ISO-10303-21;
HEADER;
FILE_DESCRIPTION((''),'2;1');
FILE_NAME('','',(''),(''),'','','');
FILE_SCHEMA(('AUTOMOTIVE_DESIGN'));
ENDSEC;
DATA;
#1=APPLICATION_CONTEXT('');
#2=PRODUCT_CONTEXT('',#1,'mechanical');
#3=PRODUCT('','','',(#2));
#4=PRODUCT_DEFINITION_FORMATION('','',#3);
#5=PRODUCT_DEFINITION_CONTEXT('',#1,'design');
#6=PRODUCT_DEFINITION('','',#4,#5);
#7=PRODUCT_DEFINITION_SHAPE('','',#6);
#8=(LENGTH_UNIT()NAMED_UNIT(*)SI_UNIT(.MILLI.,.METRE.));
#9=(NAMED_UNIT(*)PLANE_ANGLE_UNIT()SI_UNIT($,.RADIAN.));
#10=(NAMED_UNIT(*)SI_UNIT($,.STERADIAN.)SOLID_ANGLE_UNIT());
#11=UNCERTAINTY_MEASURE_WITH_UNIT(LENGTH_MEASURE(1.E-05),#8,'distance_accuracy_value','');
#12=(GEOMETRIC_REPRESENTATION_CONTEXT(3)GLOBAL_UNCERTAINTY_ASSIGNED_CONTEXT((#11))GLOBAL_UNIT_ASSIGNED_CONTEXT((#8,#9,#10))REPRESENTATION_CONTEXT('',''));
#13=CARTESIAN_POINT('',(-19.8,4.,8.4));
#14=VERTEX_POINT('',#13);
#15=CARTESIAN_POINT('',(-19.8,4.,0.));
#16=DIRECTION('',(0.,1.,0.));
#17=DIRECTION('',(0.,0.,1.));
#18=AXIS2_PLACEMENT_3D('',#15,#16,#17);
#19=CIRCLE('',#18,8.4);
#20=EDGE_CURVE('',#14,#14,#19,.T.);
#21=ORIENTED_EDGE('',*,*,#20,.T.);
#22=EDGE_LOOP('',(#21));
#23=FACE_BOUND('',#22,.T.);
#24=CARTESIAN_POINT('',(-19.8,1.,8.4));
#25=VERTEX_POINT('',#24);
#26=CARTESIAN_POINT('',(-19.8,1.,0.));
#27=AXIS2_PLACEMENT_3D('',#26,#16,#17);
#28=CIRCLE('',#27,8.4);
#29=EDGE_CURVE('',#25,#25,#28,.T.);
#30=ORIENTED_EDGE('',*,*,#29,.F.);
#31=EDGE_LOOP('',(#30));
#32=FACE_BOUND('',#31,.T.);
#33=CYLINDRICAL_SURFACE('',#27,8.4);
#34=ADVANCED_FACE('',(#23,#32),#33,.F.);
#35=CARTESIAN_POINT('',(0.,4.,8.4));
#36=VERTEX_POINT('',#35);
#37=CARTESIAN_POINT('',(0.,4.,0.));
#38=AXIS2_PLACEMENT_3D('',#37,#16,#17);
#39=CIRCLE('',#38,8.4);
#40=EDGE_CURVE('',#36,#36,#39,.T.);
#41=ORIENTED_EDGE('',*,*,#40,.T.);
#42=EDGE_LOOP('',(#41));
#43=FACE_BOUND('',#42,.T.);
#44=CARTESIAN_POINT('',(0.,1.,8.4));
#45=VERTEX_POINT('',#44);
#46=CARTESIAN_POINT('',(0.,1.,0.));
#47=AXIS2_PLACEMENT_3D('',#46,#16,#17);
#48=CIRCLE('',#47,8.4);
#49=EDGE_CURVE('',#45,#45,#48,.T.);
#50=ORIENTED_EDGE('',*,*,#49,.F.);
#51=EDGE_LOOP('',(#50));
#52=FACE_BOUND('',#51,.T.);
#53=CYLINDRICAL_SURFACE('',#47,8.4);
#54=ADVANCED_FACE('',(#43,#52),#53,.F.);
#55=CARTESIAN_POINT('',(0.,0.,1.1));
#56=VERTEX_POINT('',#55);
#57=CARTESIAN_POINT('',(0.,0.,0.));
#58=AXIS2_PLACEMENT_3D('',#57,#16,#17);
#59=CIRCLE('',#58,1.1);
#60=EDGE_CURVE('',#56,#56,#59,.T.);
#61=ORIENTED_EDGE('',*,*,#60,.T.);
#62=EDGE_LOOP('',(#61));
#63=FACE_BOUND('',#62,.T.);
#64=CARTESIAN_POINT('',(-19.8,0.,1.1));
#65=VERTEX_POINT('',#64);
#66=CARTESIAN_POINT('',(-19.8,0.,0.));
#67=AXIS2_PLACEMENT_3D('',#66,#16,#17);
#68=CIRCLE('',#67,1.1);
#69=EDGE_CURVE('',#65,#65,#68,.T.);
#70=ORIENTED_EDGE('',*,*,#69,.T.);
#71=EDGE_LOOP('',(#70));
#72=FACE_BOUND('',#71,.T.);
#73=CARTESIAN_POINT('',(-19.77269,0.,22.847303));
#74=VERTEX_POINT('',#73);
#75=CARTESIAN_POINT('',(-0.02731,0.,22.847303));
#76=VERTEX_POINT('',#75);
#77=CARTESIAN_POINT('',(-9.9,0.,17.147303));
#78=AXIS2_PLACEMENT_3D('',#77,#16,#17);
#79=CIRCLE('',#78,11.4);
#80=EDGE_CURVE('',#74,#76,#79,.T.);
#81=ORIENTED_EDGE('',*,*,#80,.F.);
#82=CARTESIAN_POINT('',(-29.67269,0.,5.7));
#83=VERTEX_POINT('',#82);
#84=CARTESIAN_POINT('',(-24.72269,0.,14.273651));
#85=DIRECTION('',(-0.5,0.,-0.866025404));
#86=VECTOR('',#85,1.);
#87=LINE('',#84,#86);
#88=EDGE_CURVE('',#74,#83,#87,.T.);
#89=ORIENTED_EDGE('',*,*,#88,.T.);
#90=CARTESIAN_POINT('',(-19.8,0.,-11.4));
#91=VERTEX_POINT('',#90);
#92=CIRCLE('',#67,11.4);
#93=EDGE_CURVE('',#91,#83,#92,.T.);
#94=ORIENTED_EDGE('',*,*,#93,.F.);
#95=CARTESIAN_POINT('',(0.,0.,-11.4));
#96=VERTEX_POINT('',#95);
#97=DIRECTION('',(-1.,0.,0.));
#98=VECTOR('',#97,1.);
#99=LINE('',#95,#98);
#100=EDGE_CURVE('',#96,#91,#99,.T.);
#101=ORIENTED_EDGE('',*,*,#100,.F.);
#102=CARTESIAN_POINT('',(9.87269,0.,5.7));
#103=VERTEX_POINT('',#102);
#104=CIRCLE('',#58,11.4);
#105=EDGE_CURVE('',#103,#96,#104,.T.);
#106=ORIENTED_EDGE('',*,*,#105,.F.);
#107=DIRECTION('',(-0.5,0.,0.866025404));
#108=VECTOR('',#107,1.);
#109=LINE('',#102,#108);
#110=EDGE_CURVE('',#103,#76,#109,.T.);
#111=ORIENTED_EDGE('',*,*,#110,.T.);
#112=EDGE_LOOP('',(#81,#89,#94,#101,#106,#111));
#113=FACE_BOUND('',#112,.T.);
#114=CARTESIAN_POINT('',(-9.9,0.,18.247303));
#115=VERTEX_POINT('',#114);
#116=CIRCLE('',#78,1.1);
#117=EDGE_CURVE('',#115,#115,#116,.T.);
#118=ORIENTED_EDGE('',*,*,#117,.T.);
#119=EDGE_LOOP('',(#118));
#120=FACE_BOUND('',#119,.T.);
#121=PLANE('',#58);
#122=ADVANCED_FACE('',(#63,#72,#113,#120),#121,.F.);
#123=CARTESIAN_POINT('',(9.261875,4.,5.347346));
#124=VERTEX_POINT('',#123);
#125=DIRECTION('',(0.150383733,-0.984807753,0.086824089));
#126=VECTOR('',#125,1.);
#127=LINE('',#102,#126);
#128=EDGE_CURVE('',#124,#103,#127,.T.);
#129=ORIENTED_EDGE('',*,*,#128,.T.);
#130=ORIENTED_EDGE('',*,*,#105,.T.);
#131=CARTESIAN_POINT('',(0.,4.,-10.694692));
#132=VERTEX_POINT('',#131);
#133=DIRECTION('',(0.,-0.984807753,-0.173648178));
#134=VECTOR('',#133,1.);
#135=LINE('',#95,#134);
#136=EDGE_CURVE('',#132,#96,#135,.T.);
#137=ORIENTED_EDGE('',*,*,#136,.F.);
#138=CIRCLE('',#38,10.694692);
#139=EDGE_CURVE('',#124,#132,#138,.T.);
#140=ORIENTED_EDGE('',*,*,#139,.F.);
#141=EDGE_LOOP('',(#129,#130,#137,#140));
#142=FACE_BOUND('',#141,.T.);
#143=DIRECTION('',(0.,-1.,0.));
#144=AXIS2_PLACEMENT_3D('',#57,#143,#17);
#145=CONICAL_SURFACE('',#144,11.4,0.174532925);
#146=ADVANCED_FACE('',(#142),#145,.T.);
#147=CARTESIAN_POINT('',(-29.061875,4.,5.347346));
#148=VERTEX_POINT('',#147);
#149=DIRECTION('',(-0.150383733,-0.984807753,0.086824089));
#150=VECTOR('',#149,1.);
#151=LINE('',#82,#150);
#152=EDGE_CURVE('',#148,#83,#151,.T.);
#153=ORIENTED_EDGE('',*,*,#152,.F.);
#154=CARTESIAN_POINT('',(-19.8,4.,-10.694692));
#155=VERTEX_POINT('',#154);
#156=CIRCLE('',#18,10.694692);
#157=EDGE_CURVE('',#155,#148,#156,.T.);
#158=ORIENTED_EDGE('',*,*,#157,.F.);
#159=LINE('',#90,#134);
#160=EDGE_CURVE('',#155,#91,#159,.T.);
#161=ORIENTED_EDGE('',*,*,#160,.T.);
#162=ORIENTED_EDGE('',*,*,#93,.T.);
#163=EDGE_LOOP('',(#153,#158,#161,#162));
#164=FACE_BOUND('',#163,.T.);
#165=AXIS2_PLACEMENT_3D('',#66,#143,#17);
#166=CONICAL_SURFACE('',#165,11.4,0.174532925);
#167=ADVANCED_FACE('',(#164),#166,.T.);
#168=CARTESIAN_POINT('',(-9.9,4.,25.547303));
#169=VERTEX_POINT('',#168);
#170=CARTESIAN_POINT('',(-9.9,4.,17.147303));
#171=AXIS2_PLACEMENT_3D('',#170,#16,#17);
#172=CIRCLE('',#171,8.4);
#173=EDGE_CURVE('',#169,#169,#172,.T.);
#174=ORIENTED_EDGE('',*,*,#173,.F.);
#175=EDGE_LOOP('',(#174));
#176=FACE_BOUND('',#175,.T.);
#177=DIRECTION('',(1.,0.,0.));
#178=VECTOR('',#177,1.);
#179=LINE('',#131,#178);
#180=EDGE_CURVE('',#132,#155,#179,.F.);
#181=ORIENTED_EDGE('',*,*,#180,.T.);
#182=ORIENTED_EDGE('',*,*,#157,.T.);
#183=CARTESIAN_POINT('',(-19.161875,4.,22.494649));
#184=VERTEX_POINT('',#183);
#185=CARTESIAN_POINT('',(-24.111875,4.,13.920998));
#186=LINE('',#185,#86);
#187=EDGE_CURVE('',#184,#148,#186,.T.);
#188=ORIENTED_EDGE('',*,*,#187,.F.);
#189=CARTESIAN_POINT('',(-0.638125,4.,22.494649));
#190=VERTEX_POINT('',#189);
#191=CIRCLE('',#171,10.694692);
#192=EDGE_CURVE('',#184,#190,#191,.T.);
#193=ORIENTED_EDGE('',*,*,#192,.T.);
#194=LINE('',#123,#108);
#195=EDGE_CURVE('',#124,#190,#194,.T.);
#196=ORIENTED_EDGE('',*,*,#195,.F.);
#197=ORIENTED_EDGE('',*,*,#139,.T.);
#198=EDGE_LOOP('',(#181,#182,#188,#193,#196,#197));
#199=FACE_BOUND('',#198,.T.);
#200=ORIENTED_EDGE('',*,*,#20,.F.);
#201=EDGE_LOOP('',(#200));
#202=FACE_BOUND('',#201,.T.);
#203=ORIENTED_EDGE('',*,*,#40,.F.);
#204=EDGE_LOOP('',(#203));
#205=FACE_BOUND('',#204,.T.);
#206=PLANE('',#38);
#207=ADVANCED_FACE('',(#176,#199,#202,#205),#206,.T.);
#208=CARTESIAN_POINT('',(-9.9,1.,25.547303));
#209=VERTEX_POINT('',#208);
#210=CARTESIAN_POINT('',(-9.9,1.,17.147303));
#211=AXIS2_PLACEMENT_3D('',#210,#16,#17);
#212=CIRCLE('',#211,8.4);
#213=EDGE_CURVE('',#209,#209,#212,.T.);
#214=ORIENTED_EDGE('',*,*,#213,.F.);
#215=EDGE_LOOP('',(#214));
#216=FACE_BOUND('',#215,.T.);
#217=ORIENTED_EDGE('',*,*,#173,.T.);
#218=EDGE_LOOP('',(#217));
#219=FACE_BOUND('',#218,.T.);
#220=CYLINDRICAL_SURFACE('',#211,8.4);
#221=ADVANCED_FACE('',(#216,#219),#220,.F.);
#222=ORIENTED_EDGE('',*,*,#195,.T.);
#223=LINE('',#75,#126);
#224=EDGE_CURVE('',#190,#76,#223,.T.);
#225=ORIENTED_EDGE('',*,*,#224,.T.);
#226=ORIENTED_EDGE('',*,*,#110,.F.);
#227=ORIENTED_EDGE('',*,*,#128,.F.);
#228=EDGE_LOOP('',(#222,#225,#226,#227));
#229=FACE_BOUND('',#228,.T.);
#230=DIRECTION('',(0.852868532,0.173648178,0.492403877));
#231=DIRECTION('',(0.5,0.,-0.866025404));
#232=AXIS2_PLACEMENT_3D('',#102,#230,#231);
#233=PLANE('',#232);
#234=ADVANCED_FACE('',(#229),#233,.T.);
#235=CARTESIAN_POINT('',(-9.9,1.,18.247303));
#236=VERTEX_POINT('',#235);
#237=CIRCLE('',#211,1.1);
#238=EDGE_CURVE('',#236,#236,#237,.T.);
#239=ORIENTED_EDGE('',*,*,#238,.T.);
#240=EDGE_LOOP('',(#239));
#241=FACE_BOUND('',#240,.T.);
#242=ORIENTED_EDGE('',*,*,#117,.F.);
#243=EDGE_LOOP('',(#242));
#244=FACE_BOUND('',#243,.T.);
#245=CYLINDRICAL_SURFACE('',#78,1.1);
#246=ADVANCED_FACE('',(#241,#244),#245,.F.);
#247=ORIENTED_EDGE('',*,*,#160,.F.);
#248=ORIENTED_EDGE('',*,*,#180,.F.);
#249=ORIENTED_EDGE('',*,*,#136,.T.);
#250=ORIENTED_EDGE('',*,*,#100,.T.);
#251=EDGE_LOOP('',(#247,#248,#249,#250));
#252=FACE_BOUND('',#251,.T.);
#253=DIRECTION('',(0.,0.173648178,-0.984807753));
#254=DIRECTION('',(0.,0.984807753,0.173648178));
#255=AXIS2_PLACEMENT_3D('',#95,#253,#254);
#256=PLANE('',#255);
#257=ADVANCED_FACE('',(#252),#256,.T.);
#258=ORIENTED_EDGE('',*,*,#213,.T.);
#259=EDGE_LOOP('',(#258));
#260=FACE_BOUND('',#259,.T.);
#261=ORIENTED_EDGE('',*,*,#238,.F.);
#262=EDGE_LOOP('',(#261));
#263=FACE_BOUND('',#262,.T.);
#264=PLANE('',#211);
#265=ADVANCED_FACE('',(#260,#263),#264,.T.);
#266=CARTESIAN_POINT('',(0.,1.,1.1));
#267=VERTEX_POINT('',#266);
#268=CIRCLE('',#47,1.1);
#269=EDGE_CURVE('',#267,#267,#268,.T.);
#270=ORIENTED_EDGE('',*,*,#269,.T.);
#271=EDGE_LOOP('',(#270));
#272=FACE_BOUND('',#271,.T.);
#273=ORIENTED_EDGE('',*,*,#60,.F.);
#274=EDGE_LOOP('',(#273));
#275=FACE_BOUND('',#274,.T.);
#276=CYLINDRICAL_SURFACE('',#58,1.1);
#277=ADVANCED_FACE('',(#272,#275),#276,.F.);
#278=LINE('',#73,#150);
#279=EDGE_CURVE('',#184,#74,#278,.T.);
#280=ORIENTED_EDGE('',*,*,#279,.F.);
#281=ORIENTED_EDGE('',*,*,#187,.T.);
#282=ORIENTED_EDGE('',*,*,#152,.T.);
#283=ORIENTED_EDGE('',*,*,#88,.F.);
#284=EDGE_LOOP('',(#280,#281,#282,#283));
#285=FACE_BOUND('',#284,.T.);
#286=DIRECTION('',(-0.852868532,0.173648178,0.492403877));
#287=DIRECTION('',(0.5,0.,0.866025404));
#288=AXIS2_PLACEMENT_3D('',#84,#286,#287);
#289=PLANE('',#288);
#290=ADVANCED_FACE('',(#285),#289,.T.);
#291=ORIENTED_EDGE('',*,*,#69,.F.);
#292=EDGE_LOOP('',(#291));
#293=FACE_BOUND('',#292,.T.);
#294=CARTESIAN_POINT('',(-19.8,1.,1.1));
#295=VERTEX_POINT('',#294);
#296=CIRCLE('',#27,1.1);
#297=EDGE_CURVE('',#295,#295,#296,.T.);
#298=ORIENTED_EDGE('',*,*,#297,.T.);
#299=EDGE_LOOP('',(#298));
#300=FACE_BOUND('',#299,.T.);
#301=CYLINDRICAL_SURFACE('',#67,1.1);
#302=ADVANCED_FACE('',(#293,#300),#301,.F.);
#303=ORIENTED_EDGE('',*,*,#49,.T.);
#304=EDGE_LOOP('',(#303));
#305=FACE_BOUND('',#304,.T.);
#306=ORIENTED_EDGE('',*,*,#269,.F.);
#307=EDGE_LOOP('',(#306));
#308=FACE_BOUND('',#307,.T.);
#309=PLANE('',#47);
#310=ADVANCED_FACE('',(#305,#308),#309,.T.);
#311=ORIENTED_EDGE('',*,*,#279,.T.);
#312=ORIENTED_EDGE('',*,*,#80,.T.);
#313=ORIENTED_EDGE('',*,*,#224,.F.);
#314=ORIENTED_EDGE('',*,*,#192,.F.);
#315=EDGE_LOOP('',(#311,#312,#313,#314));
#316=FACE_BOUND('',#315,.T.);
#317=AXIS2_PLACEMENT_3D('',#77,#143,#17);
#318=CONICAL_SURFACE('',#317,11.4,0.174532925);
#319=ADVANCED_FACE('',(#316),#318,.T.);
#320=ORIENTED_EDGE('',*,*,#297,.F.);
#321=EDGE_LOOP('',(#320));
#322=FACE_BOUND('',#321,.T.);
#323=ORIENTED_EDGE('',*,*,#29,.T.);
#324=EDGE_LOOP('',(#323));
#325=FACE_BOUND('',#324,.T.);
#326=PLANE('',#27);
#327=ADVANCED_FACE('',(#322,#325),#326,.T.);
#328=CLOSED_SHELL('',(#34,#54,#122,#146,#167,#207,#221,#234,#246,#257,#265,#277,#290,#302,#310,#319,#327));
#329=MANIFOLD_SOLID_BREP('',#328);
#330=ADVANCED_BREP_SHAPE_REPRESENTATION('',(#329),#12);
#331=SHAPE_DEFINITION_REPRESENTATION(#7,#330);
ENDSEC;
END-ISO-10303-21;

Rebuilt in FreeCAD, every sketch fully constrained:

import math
import FreeCAD as App
import Part
import Sketcher
from FreeCAD import Vector
Q = App.Units.Quantity

doc = App.newDocument("Part")
body = doc.addObject("PartDesign::Body", "Body")

# Sketch on XZ plane
sketch1 = doc.addObject("Sketcher::SketchObject", "Sketch")
body.addObject(sketch1)
sketch1.AttachmentSupport = (doc.XZ_Plane, [""])
sketch1.MapMode = "FlatFace"
sketch1.addGeometry([
    Part.LineSegment(Vector(-29.67269, 5.7, 0), Vector(-19.77269, 22.847303, 0)),  # 0
    Part.ArcOfCircle(Part.Circle(Vector(-9.9, 17.147303, 0), Vector(0, 0, 1), 11.4), math.radians(30), math.radians(150)),  # 1
    Part.LineSegment(Vector(-0.02731, 22.847303, 0), Vector(9.87269, 5.7, 0)),  # 2
    Part.ArcOfCircle(Part.Circle(Vector(0, 0, 0), Vector(0, 0, 1), 11.4), math.radians(-90), math.radians(30)),  # 3
    Part.LineSegment(Vector(0, -11.4, 0), Vector(-19.8, -11.4, 0)),  # 4
    Part.ArcOfCircle(Part.Circle(Vector(-19.8, 0, 0), Vector(0, 0, 1), 11.4), math.radians(150), math.radians(270)),  # 5
], False)
sketch1.addConstraint([
    Sketcher.Constraint("Tangent", 0, 2, 1, 2),
    Sketcher.Constraint("Tangent", 1, 1, 2, 1),
    Sketcher.Constraint("Tangent", 2, 2, 3, 2),
    Sketcher.Constraint("Tangent", 3, 1, 4, 1),
    Sketcher.Constraint("Tangent", 4, 2, 5, 2),
    Sketcher.Constraint("Tangent", 5, 1, 0, 1),
    Sketcher.Constraint("Horizontal", 4),
    Sketcher.Constraint("Coincident", 3, 3, -1, 1),
    Sketcher.Constraint("Equal", 1, 3),
    Sketcher.Constraint("Equal", 3, 5),
    Sketcher.Constraint("Horizontal", 0, 2, 1, 1),
    Sketcher.Constraint("Radius", 1, Q("11.4 mm")),
    Sketcher.Constraint("Angle", 0, Q("60 deg")),
    Sketcher.Constraint("DistanceX", 4, 2, 4, 1, Q("19.8 mm")),
])
pad1 = doc.addObject("PartDesign::Pad", "Pad")
body.addObject(pad1)
pad1.Profile = sketch1
pad1.Length = 4
pad1.Reversed = True
pad1.TaperAngle = -10

# Sketch on XZ plane
sketch2 = doc.addObject("Sketcher::SketchObject", "Sketch001")
body.addObject(sketch2)
sketch2.AttachmentSupport = (doc.XZ_Plane, [""])
sketch2.MapMode = "FlatFace"
sketch2.AttachmentOffset = App.Placement(Vector(0, 0, -4), App.Rotation())
sketch2.addGeometry([
    Part.Circle(Vector(-9.9, 17.147303, 0), Vector(0, 0, 1), 1.1),
    Part.Circle(Vector(0, 0, 0), Vector(0, 0, 1), 1.1),
    Part.Circle(Vector(-19.8, 0, 0), Vector(0, 0, 1), 1.1),
], False)
sketch2.addConstraint([
    Sketcher.Constraint("Coincident", 1, 3, -1, 1),
    Sketcher.Constraint("Equal", 0, 1),
    Sketcher.Constraint("Equal", 1, 2),
    Sketcher.Constraint("PointOnObject", 2, 3, -1),
    Sketcher.Constraint("Diameter", 0, Q("2.2 mm")),
    Sketcher.Constraint("DistanceX", 0, 3, -1, 1, Q("9.9 mm")),
    Sketcher.Constraint("DistanceX", 2, 3, -1, 1, Q("19.8 mm")),
    Sketcher.Constraint("DistanceY", -1, 1, 0, 3, Q("17.147303 mm")),
])
pocket1 = doc.addObject("PartDesign::Pocket", "Pocket")
body.addObject(pocket1)
pocket1.Profile = sketch2
pocket1.Length = 4
pocket1.Reversed = True

# Sketch on XZ plane
sketch3 = doc.addObject("Sketcher::SketchObject", "Sketch002")
body.addObject(sketch3)
sketch3.AttachmentSupport = (doc.XZ_Plane, [""])
sketch3.MapMode = "FlatFace"
sketch3.AttachmentOffset = App.Placement(Vector(0, 0, -4), App.Rotation())
sketch3.addGeometry([
    Part.Circle(Vector(-19.8, 0, 0), Vector(0, 0, 1), 8.4),  # 0
    Part.Circle(Vector(-19.8, 0, 0), Vector(0, 0, 1), 1.1),  # 1
    Part.Circle(Vector(-9.9, 17.147303, 0), Vector(0, 0, 1), 8.4),  # 2
    Part.Circle(Vector(-9.9, 17.147303, 0), Vector(0, 0, 1), 1.1),  # 3
    Part.Circle(Vector(0, 0, 0), Vector(0, 0, 1), 8.4),  # 4
    Part.Circle(Vector(0, 0, 0), Vector(0, 0, 1), 1.1),  # 5
], False)
sketch3.addConstraint([
    Sketcher.Constraint("Coincident", 4, 3, -1, 1),
    Sketcher.Constraint("Coincident", 5, 3, -1, 1),
    Sketcher.Constraint("Coincident", 1, 3, 0, 3),
    Sketcher.Constraint("Coincident", 3, 3, 2, 3),
    Sketcher.Constraint("Equal", 0, 2),
    Sketcher.Constraint("Equal", 1, 3),
    Sketcher.Constraint("Equal", 2, 4),
    Sketcher.Constraint("Equal", 3, 5),
    Sketcher.Constraint("PointOnObject", 0, 3, -1),
    Sketcher.Constraint("Diameter", 0, Q("16.8 mm")),
    Sketcher.Constraint("Diameter", 1, Q("2.2 mm")),
    Sketcher.Constraint("DistanceX", 0, 3, -1, 1, Q("19.8 mm")),
    Sketcher.Constraint("DistanceX", 2, 3, -1, 1, Q("9.9 mm")),
    Sketcher.Constraint("DistanceY", -1, 1, 2, 3, Q("17.147303 mm")),
])
pocket2 = doc.addObject("PartDesign::Pocket", "Pocket001")
body.addObject(pocket2)
pocket2.Profile = sketch3
pocket2.Length = 3
pocket2.Reversed = True

doc.recompute()
